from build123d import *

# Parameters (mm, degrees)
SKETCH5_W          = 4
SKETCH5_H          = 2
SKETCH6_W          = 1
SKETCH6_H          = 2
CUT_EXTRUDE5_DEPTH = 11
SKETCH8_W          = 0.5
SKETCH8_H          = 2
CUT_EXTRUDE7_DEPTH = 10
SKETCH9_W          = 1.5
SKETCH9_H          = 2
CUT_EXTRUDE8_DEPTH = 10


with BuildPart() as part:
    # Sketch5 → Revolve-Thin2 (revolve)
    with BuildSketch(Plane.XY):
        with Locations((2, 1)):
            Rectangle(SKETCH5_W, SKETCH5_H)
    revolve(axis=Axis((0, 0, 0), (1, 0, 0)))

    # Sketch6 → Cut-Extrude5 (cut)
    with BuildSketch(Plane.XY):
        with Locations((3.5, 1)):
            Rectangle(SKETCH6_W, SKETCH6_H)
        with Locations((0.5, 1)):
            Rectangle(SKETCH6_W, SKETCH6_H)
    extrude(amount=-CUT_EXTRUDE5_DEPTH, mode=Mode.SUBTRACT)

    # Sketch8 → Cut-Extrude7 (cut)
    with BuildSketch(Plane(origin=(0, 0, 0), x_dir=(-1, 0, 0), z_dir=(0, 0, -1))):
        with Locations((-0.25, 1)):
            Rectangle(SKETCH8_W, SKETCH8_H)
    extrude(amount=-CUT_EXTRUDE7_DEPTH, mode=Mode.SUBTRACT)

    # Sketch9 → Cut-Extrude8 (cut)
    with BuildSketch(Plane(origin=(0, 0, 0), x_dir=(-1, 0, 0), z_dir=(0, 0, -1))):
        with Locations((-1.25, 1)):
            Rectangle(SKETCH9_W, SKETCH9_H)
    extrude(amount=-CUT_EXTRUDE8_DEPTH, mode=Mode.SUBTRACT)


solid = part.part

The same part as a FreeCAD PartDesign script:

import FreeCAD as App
import Part
import Sketcher

V = App.Vector


def add_polygon(sketch, points):
    """Adds a closed chain of lines whose ends are joined by coincident constraints."""
    first, n = sketch.GeometryCount, len(points)
    for a, b in zip(points, points[1:] + points[:1]):
        sketch.addGeometry(Part.LineSegment(App.Vector(*a, 0), App.Vector(*b, 0)), False)
    for i in range(n):
        sketch.addConstraint(Sketcher.Constraint("Coincident", first + i, 2, first + (i + 1) % n, 1))

doc = App.newDocument("Part")
body = doc.addObject("PartDesign::Body", "Body")

# Sketch on XY plane
sketch1 = body.newObject("Sketcher::SketchObject", "Sketch")
sketch1.AttachmentSupport = (doc.getObject("XY_Plane"), [""])
sketch1.MapMode = "FlatFace"
add_polygon(sketch1, [(0, 2), (0, 0), (4, 0), (4, 2)])  # lines 0-3
sketch1.addConstraint(Sketcher.Constraint("Vertical", 0))
sketch1.addConstraint(Sketcher.Constraint("Horizontal", 1))
sketch1.addConstraint(Sketcher.Constraint("Vertical", 2))
sketch1.addConstraint(Sketcher.Constraint("Horizontal", 3))
sketch1.addConstraint(Sketcher.Constraint("Coincident", 0, 2, -1, 1))
sketch1.addConstraint(Sketcher.Constraint("DistanceX", 1, 1, 1, 2, 4.0))
sketch1.addConstraint(Sketcher.Constraint("DistanceY", 0, 2, 0, 1, 2.0))
revolution = body.newObject("PartDesign::Revolution", "Revolution")
revolution.Profile = sketch1
revolution.ReferenceAxis = (sketch1, ["H_Axis"])
revolution.Angle = 360

# Sketch on XY plane
sketch2 = body.newObject("Sketcher::SketchObject", "Sketch001")
sketch2.AttachmentSupport = (doc.getObject("XY_Plane"), [""])
sketch2.MapMode = "FlatFace"
add_polygon(sketch2, [(3, 2), (3, 0), (4, 0), (4, 2)])  # lines 0-3
add_polygon(sketch2, [(0, 2), (0, 0), (1, 0), (1, 2)])  # lines 4-7
sketch2.addConstraint(Sketcher.Constraint("Vertical", 0))
sketch2.addConstraint(Sketcher.Constraint("Horizontal", 1))
sketch2.addConstraint(Sketcher.Constraint("Vertical", 2))
sketch2.addConstraint(Sketcher.Constraint("Horizontal", 3))
sketch2.addConstraint(Sketcher.Constraint("Vertical", 4))
sketch2.addConstraint(Sketcher.Constraint("Horizontal", 5))
sketch2.addConstraint(Sketcher.Constraint("Vertical", 6))
sketch2.addConstraint(Sketcher.Constraint("Horizontal", 7))
sketch2.addConstraint(Sketcher.Constraint("Coincident", 4, 2, -1, 1))
sketch2.addConstraint(Sketcher.Constraint("PointOnObject", 0, 2, -1))
sketch2.addConstraint(Sketcher.Constraint("Horizontal", 3, 2, 6, 2))
sketch2.addConstraint(Sketcher.Constraint("Equal", 3, 5))
sketch2.addConstraint(Sketcher.Constraint("DistanceX", 1, 1, 1, 2, 1.0))
sketch2.addConstraint(Sketcher.Constraint("DistanceY", 0, 2, 0, 1, 2.0))
sketch2.addConstraint(Sketcher.Constraint("DistanceX", -1, 1, 0, 2, 3.0))
pocket1 = body.newObject("PartDesign::Pocket", "Pocket")
pocket1.Profile = sketch2
pocket1.Length = 11

# Sketch on XY plane
sketch3 = body.newObject("Sketcher::SketchObject", "Sketch002")
sketch3.AttachmentSupport = (doc.getObject("XY_Plane"), [""])
sketch3.MapMode = "FlatFace"
add_polygon(sketch3, [(0.5, 2), (0.5, 0), (0, 0), (0, 2)])  # lines 0-3
sketch3.addConstraint(Sketcher.Constraint("Vertical", 0))
sketch3.addConstraint(Sketcher.Constraint("Horizontal", 1))
sketch3.addConstraint(Sketcher.Constraint("Vertical", 2))
sketch3.addConstraint(Sketcher.Constraint("Horizontal", 3))
sketch3.addConstraint(Sketcher.Constraint("Coincident", 1, 2, -1, 1))
sketch3.addConstraint(Sketcher.Constraint("DistanceY", 0, 2, 0, 1, 2.0))
sketch3.addConstraint(Sketcher.Constraint("DistanceX", 1, 2, 1, 1, 0.5))
pocket2 = body.newObject("PartDesign::Pocket", "Pocket001")
pocket2.Profile = sketch3
pocket2.Length = 10
pocket2.Reversed = True

# Sketch on XY plane
sketch4 = body.newObject("Sketcher::SketchObject", "Sketch003")
sketch4.AttachmentSupport = (doc.getObject("XY_Plane"), [""])
sketch4.MapMode = "FlatFace"
add_polygon(sketch4, [(2, 2), (2, 0), (0.5, 0), (0.5, 2)])  # lines 0-3
sketch4.addConstraint(Sketcher.Constraint("Vertical", 0))
sketch4.addConstraint(Sketcher.Constraint("Horizontal", 1))
sketch4.addConstraint(Sketcher.Constraint("Vertical", 2))
sketch4.addConstraint(Sketcher.Constraint("Horizontal", 3))
sketch4.addConstraint(Sketcher.Constraint("PointOnObject", 0, 2, -1))
sketch4.addConstraint(Sketcher.Constraint("DistanceY", 0, 2, 0, 1, 2.0))
sketch4.addConstraint(Sketcher.Constraint("DistanceX", 1, 2, 1, 1, 1.5))
sketch4.addConstraint(Sketcher.Constraint("DistanceX", -1, 1, 0, 2, 2.0))
pocket3 = body.newObject("PartDesign::Pocket", "Pocket002")
pocket3.Profile = sketch4
pocket3.Length = 10
pocket3.Reversed = True

doc.recompute()
